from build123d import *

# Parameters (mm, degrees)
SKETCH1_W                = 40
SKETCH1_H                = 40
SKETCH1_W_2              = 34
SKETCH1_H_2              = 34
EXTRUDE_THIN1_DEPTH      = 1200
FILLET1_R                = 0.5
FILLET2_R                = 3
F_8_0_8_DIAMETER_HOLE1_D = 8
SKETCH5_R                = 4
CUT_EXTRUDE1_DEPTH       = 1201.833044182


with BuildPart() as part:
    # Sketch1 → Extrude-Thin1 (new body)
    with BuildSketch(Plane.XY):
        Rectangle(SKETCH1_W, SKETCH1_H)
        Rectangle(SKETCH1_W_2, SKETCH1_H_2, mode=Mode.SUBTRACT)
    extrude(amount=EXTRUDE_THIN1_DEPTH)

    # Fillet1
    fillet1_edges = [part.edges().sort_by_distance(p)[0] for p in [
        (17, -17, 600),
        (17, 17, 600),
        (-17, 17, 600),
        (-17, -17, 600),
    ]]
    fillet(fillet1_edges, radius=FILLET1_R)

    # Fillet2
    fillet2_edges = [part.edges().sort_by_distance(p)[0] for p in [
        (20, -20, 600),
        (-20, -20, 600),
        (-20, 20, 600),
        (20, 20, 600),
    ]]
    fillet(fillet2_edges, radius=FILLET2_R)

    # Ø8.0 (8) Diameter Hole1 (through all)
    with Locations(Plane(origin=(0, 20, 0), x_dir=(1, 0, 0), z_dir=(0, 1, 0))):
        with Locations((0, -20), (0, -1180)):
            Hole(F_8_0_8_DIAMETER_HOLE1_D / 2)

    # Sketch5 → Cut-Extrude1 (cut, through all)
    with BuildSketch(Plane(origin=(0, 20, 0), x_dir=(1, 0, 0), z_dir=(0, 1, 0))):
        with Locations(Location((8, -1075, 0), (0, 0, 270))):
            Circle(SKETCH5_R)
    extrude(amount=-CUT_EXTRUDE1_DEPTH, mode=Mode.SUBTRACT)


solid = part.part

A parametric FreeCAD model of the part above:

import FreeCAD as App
import Part
import Sketcher


def edges_at(feature, points):
    """Names of the edges that pass closest to the given points."""
    edges = feature.Shape.Edges
    near = lambda p: min(range(len(edges)), key=lambda i: edges[i].distToShape(Part.Vertex(*p))[0])
    return sorted({f"Edge{near(p) + 1}" for p in points})


def add_polygon(sketch, points):
    """Adds a closed chain of lines whose ends are joined by coincident constraints."""
    first, n = sketch.GeometryCount, len(points)
    for a, b in zip(points, points[1:] + points[:1]):
        sketch.addGeometry(Part.LineSegment(App.Vector(*a, 0), App.Vector(*b, 0)), False)
    for i in range(n):
        sketch.addConstraint(Sketcher.Constraint("Coincident", first + i, 2, first + (i + 1) % n, 1))

doc = App.newDocument("Part")
body = doc.addObject("PartDesign::Body", "Body")

sketch1 = body.newObject("Sketcher::SketchObject", "Sketch")
sketch1.AttachmentSupport = (doc.getObject("XY_Plane"), [""])
sketch1.MapMode = "FlatFace"
add_polygon(sketch1, [(-20, 20), (-20, -20), (20, -20), (20, 20)])
add_polygon(sketch1, [(17, -17), (-17, -17), (-17, 17), (17, 17)])
sketch1.addConstraint(Sketcher.Constraint("Vertical", 0))
sketch1.addConstraint(Sketcher.Constraint("Horizontal", 1))
sketch1.addConstraint(Sketcher.Constraint("Vertical", 2))
sketch1.addConstraint(Sketcher.Constraint("Horizontal", 3))
sketch1.addConstraint(Sketcher.Constraint("Horizontal", 4))
sketch1.addConstraint(Sketcher.Constraint("Vertical", 5))
sketch1.addConstraint(Sketcher.Constraint("Horizontal", 6))
sketch1.addConstraint(Sketcher.Constraint("Vertical", 7))
sketch1.addConstraint(Sketcher.Constraint("Symmetric", 0, 2, 2, 2, -1, 1))
sketch1.addConstraint(Sketcher.Constraint("Symmetric", 4, 2, 6, 2, -1, 1))
sketch1.addConstraint(Sketcher.Constraint("Equal", 3, 0))
sketch1.addConstraint(Sketcher.Constraint("Equal", 6, 5))
sketch1.addConstraint(Sketcher.Constraint("DistanceX", 1, 1, 1, 2, 40.0))
sketch1.addConstraint(Sketcher.Constraint("DistanceX", 4, 2, 4, 1, 34.0))
pad1 = body.newObject("PartDesign::Pad", "Pad")
pad1.Profile = sketch1
pad1.Length = 1200
doc.recompute()

fillet = body.newObject("PartDesign::Fillet", "Fillet")
fillet.Base = (pad1, edges_at(pad1, [
    (17, -17, 600),
    (17, 17, 600),
    (-17, 17, 600),
    (-17, -17, 600),
]))
fillet.Radius = 0.5
doc.recompute()

fillet2 = body.newObject("PartDesign::Fillet", "Fillet001")
fillet2.Base = (fillet, edges_at(fillet, [
    (20, -20, 600),
    (-20, -20, 600),
    (-20, 20, 600),
    (20, 20, 600),
]))
fillet2.Radius = 3

sketch2 = body.newObject("Sketcher::SketchObject", "Sketch001")
sketch2.AttachmentSupport = (doc.getObject("XZ_Plane"), [""])
sketch2.MapMode = "FlatFace"
sketch2.AttachmentOffset = App.Placement(App.Vector(0, 0, -20), App.Rotation())
sketch2.addGeometry(Part.Circle(App.Vector(0, 20, 0), App.Vector(0, 0, 1), 4), False)
sketch2.addGeometry(Part.Circle(App.Vector(0, 1180, 0), App.Vector(0, 0, 1), 4), False)
sketch2.addConstraint(Sketcher.Constraint("Equal", 0, 1))
sketch2.addConstraint(Sketcher.Constraint("PointOnObject", 0, 3, -2))
sketch2.addConstraint(Sketcher.Constraint("PointOnObject", 1, 3, -2))
sketch2.addConstraint(Sketcher.Constraint("Diameter", 0, 8.0))
sketch2.addConstraint(Sketcher.Constraint("DistanceY", -1, 1, 0, 3, 20.0))
sketch2.addConstraint(Sketcher.Constraint("DistanceY", -1, 1, 1, 3, 1180.0))
doc.recompute()
hole = body.newObject("PartDesign::Hole", "Hole")
hole.Profile = sketch2
hole.ThreadType = "None"
hole.Diameter = 8
hole.DepthType = "ThroughAll"
hole.Reversed = True

sketch3 = body.newObject("Sketcher::SketchObject", "Sketch002")
sketch3.AttachmentSupport = (doc.getObject("XZ_Plane"), [""])
sketch3.MapMode = "FlatFace"
sketch3.AttachmentOffset = App.Placement(App.Vector(0, 0, -20), App.Rotation())
sketch3.addGeometry(Part.Circle(App.Vector(8, 1075, 0), App.Vector(0, 0, 1), 4), False)
sketch3.addConstraint(Sketcher.Constraint("Diameter", 0, 8.0))
sketch3.addConstraint(Sketcher.Constraint("DistanceX", -1, 1, 0, 3, 8.0))
sketch3.addConstraint(Sketcher.Constraint("DistanceY", -1, 1, 0, 3, 1075.0))
pocket1 = body.newObject("PartDesign::Pocket", "Pocket")
pocket1.Profile = sketch3
pocket1.Type = "ThroughAll"
pocket1.Reversed = True

doc.recompute()
